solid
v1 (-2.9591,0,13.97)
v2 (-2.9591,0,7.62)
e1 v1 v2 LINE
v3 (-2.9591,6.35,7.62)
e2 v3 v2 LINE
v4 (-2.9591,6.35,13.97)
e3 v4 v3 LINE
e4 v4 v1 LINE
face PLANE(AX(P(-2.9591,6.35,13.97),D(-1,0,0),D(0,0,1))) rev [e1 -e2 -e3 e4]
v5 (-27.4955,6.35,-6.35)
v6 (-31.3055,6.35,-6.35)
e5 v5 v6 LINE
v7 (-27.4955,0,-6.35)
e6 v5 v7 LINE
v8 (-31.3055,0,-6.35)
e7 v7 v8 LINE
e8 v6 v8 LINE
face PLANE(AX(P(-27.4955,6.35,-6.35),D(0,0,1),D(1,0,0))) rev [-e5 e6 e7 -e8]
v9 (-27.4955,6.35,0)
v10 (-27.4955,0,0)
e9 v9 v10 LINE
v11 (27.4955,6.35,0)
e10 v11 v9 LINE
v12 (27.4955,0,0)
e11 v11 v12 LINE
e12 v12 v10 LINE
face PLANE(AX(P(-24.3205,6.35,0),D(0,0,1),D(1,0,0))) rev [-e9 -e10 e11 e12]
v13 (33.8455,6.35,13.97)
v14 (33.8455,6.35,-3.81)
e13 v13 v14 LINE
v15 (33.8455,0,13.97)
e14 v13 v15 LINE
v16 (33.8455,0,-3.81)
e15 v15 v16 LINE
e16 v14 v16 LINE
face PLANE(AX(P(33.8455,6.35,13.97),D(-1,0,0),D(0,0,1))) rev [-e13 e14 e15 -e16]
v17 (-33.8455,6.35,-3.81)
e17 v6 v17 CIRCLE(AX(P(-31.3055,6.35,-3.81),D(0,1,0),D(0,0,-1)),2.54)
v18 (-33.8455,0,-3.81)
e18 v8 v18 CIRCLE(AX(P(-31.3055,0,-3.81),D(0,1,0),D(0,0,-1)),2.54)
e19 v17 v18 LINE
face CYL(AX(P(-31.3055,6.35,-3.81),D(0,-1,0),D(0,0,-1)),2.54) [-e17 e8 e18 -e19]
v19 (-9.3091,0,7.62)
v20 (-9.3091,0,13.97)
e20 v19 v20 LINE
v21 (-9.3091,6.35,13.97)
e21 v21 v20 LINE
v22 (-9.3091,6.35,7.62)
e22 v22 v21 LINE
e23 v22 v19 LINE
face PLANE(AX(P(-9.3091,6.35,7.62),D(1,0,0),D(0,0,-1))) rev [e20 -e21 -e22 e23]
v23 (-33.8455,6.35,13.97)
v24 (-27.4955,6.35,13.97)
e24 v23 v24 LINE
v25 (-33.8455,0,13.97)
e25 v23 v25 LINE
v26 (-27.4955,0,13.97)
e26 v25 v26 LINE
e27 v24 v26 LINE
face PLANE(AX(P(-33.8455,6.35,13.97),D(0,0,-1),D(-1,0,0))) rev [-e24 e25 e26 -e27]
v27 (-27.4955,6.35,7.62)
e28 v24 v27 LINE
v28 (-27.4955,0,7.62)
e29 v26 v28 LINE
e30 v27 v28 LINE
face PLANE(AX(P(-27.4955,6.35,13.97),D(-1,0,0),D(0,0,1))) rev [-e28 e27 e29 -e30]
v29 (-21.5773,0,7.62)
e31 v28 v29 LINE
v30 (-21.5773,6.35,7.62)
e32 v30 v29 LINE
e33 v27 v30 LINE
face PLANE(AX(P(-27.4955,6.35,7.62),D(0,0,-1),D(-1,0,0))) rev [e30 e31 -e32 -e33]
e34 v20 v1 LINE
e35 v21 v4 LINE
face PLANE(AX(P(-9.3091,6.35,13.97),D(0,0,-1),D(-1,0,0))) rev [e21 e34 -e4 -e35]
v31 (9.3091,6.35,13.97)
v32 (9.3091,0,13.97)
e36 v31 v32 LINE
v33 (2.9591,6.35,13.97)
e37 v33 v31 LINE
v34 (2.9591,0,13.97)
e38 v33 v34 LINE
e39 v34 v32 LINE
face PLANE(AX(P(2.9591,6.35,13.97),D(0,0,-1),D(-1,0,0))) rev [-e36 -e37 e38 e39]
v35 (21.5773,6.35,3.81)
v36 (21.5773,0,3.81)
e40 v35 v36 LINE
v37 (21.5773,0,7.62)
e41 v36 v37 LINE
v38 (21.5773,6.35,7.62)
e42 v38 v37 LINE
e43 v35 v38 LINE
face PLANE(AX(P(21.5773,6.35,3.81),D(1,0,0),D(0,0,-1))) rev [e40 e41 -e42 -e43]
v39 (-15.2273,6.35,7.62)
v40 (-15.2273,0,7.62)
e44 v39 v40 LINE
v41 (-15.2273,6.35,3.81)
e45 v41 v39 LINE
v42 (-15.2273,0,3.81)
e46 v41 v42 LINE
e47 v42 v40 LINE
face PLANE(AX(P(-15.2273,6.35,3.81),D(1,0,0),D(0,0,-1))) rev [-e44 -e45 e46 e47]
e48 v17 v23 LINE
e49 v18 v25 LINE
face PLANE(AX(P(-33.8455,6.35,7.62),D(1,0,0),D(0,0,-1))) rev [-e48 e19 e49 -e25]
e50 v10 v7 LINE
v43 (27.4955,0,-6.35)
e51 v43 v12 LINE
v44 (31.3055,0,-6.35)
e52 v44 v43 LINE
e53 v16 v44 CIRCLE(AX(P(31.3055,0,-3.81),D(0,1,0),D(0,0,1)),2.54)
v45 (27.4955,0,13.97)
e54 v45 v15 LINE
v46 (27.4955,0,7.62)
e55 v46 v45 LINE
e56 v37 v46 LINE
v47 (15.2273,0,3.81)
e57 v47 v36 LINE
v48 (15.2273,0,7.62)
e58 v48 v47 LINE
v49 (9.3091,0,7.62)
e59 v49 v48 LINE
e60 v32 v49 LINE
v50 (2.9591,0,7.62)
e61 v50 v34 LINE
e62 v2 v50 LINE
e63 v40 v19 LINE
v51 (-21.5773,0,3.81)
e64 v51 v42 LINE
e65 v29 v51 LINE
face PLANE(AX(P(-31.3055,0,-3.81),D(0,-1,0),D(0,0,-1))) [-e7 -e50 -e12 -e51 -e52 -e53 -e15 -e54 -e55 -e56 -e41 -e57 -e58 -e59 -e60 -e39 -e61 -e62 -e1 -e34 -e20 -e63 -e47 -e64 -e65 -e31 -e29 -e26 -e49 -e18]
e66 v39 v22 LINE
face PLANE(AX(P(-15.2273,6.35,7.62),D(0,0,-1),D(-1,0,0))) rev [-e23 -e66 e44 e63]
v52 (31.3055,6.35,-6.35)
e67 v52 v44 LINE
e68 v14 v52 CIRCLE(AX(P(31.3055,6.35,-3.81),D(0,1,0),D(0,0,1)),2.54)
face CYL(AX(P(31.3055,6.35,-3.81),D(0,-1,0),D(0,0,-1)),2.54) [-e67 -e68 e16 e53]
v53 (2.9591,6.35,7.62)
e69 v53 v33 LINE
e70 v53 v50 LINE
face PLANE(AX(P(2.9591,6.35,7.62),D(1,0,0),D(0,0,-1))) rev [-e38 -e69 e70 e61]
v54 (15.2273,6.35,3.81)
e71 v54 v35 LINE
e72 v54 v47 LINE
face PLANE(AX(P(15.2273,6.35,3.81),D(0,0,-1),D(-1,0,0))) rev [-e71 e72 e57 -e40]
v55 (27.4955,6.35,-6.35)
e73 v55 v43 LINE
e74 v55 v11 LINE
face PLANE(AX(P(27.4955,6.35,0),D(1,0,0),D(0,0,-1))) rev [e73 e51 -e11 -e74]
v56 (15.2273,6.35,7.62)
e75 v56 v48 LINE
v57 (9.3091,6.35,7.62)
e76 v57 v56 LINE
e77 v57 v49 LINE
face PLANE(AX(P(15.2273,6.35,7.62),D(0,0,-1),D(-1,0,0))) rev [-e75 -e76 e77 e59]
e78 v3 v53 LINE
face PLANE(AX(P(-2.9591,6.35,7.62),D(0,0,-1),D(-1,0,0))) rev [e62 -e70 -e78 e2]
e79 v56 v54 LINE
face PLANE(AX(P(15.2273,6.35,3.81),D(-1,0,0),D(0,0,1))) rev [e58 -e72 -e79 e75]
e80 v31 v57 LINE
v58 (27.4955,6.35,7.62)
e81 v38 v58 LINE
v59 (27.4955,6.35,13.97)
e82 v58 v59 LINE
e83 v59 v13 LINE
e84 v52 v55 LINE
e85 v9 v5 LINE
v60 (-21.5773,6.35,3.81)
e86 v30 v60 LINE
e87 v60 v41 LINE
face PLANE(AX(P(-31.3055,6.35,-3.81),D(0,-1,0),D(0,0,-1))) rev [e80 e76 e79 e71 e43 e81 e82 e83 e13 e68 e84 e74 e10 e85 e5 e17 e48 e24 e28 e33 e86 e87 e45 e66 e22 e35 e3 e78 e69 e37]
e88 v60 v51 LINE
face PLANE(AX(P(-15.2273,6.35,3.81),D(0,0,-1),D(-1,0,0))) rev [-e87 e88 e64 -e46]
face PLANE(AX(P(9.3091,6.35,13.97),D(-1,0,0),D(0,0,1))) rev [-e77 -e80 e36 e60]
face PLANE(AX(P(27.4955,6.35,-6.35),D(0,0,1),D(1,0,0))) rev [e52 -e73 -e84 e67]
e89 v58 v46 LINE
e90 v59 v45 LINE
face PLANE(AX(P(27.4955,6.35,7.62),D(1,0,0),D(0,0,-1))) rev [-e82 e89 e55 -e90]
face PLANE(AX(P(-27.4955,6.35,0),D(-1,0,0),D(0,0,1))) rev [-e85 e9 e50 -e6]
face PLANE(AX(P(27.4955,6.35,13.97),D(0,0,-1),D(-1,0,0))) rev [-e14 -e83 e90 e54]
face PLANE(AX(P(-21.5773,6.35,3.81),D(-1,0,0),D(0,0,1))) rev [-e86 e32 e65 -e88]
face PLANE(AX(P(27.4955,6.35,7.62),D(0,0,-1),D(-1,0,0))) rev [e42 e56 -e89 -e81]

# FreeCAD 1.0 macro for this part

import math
import FreeCAD as App
import Part
import Sketcher
Q = App.Units.Quantity

doc = App.newDocument("Part")
body = doc.addObject("PartDesign::Body", "Body")

# Sketch on XZ plane
sketch1 = doc.addObject("Sketcher::SketchObject", "Sketch")
body.addObject(sketch1)
sketch1.AttachmentSupport = (doc.XZ_Plane, [""])
sketch1.MapMode = "FlatFace"
sketch1.addGeometry(Part.LineSegment(App.Vector(27.5, -6.3, 0), App.Vector(27.5, 0, 0)), False)
sketch1.addGeometry(Part.LineSegment(App.Vector(27.5, 0, 0), App.Vector(-27.5, 0, 0)), False)
sketch1.addGeometry(Part.LineSegment(App.Vector(-27.5, 0, 0), App.Vector(-27.5, -6.3, 0)), False)
sketch1.addGeometry(Part.LineSegment(App.Vector(-27.5, -6.3, 0), App.Vector(-31.3, -6.3, 0)), False)
sketch1.addGeometry(Part.ArcOfCircle(Part.Circle(App.Vector(-31.3, -3.8, 0), App.Vector(0, 0, 1), 2.5), math.radians(-180), math.radians(-90)), False)
sketch1.addGeometry(Part.LineSegment(App.Vector(-33.8, -3.8, 0), App.Vector(-33.8, 14, 0)), False)
sketch1.addGeometry(Part.LineSegment(App.Vector(-33.8, 14, 0), App.Vector(-27.5, 14, 0)), False)
sketch1.addGeometry(Part.LineSegment(App.Vector(-27.5, 14, 0), App.Vector(-27.5, 7.6, 0)), False)
sketch1.addGeometry(Part.LineSegment(App.Vector(-27.5, 7.6, 0), App.Vector(-21.6, 7.6, 0)), False)
sketch1.addGeometry(Part.LineSegment(App.Vector(-21.6, 7.6, 0), App.Vector(-21.6, 3.8, 0)), False)
sketch1.addGeometry(Part.LineSegment(App.Vector(-21.6, 3.8, 0), App.Vector(-15.2, 3.8, 0)), False)
sketch1.addGeometry(Part.LineSegment(App.Vector(-15.2, 3.8, 0), App.Vector(-15.2, 7.6, 0)), False)
sketch1.addGeometry(Part.LineSegment(App.Vector(-15.2, 7.6, 0), App.Vector(-9.3, 7.6, 0)), False)
sketch1.addGeometry(Part.LineSegment(App.Vector(-9.3, 7.6, 0), App.Vector(-9.3, 14, 0)), False)
sketch1.addGeometry(Part.LineSegment(App.Vector(-9.3, 14, 0), App.Vector(-3, 14, 0)), False)
sketch1.addGeometry(Part.LineSegment(App.Vector(-3, 14, 0), App.Vector(-3, 7.6, 0)), False)
sketch1.addGeometry(Part.LineSegment(App.Vector(-3, 7.6, 0), App.Vector(3, 7.6, 0)), False)
sketch1.addGeometry(Part.LineSegment(App.Vector(3, 7.6, 0), App.Vector(3, 14, 0)), False)
sketch1.addGeometry(Part.LineSegment(App.Vector(3, 14, 0), App.Vector(9.3, 14, 0)), False)
sketch1.addGeometry(Part.LineSegment(App.Vector(9.3, 14, 0), App.Vector(9.3, 7.6, 0)), False)
sketch1.addGeometry(Part.LineSegment(App.Vector(9.3, 7.6, 0), App.Vector(15.2, 7.6, 0)), False)
sketch1.addGeometry(Part.LineSegment(App.Vector(15.2, 7.6, 0), App.Vector(15.2, 3.8, 0)), False)
sketch1.addGeometry(Part.LineSegment(App.Vector(15.2, 3.8, 0), App.Vector(21.6, 3.8, 0)), False)
sketch1.addGeometry(Part.LineSegment(App.Vector(21.6, 3.8, 0), App.Vector(21.6, 7.6, 0)), False)
sketch1.addGeometry(Part.LineSegment(App.Vector(21.6, 7.6, 0), App.Vector(27.5, 7.6, 0)), False)
sketch1.addGeometry(Part.LineSegment(App.Vector(27.5, 7.6, 0), App.Vector(27.5, 14, 0)), False)
sketch1.addGeometry(Part.LineSegment(App.Vector(27.5, 14, 0), App.Vector(33.8, 14, 0)), False)
sketch1.addGeometry(Part.LineSegment(App.Vector(33.8, 14, 0), App.Vector(33.8, -3.8, 0)), False)
sketch1.addGeometry(Part.ArcOfCircle(Part.Circle(App.Vector(31.3, -3.8, 0), App.Vector(0, 0, 1), 2.5), math.radians(-90), math.radians(0)), False)
sketch1.addGeometry(Part.LineSegment(App.Vector(31.3, -6.3, 0), App.Vector(27.5, -6.3, 0)), False)
sketch1.addConstraint(Sketcher.Constraint("Coincident", 0, 2, 1, 1))
sketch1.addConstraint(Sketcher.Constraint("Coincident", 1, 2, 2, 1))
sketch1.addConstraint(Sketcher.Constraint("Coincident", 2, 2, 3, 1))
sketch1.addConstraint(Sketcher.Constraint("Tangent", 3, 2, 4, 2))
sketch1.addConstraint(Sketcher.Constraint("Tangent", 4, 1, 5, 1))
sketch1.addConstraint(Sketcher.Constraint("Coincident", 5, 2, 6, 1))
sketch1.addConstraint(Sketcher.Constraint("Coincident", 6, 2, 7, 1))
sketch1.addConstraint(Sketcher.Constraint("Coincident", 7, 2, 8, 1))
sketch1.addConstraint(Sketcher.Constraint("Coincident", 8, 2, 9, 1))
sketch1.addConstraint(Sketcher.Constraint("Coincident", 9, 2, 10, 1))
sketch1.addConstraint(Sketcher.Constraint("Coincident", 10, 2, 11, 1))
sketch1.addConstraint(Sketcher.Constraint("Coincident", 11, 2, 12, 1))
sketch1.addConstraint(Sketcher.Constraint("Coincident", 12, 2, 13, 1))
sketch1.addConstraint(Sketcher.Constraint("Coincident", 13, 2, 14, 1))
sketch1.addConstraint(Sketcher.Constraint("Coincident", 14, 2, 15, 1))
sketch1.addConstraint(Sketcher.Constraint("Coincident", 15, 2, 16, 1))
sketch1.addConstraint(Sketcher.Constraint("Coincident", 16, 2, 17, 1))
sketch1.addConstraint(Sketcher.Constraint("Coincident", 17, 2, 18, 1))
sketch1.addConstraint(Sketcher.Constraint("Coincident", 18, 2, 19, 1))
sketch1.addConstraint(Sketcher.Constraint("Coincident", 19, 2, 20, 1))
sketch1.addConstraint(Sketcher.Constraint("Coincident", 20, 2, 21, 1))
sketch1.addConstraint(Sketcher.Constraint("Coincident", 21, 2, 22, 1))
sketch1.addConstraint(Sketcher.Constraint("Coincident", 22, 2, 23, 1))
sketch1.addConstraint(Sketcher.Constraint("Coincident", 23, 2, 24, 1))
sketch1.addConstraint(Sketcher.Constraint("Coincident", 24, 2, 25, 1))
sketch1.addConstraint(Sketcher.Constraint("Coincident", 25, 2, 26, 1))
sketch1.addConstraint(Sketcher.Constraint("Coincident", 26, 2, 27, 1))
sketch1.addConstraint(Sketcher.Constraint("Tangent", 27, 2, 28, 2))
sketch1.addConstraint(Sketcher.Constraint("Tangent", 28, 1, 29, 1))
sketch1.addConstraint(Sketcher.Constraint("Coincident", 29, 2, 0, 1))
sketch1.addConstraint(Sketcher.Constraint("Vertical", 0))
sketch1.addConstraint(Sketcher.Constraint("Horizontal", 1))
sketch1.addConstraint(Sketcher.Constraint("Vertical", 2))
sketch1.addConstraint(Sketcher.Constraint("Horizontal", 3))
sketch1.addConstraint(Sketcher.Constraint("Vertical", 5))
sketch1.addConstraint(Sketcher.Constraint("Horizontal", 6))
sketch1.addConstraint(Sketcher.Constraint("Vertical", 7))
sketch1.addConstraint(Sketcher.Constraint("Horizontal", 8))
sketch1.addConstraint(Sketcher.Constraint("Vertical", 9))
sketch1.addConstraint(Sketcher.Constraint("Horizontal", 10))
sketch1.addConstraint(Sketcher.Constraint("Vertical", 11))
sketch1.addConstraint(Sketcher.Constraint("Horizontal", 12))
sketch1.addConstraint(Sketcher.Constraint("Vertical", 13))
sketch1.addConstraint(Sketcher.Constraint("Horizontal", 14))
sketch1.addConstraint(Sketcher.Constraint("Vertical", 15))
sketch1.addConstraint(Sketcher.Constraint("Horizontal", 16))
sketch1.addConstraint(Sketcher.Constraint("Vertical", 17))
sketch1.addConstraint(Sketcher.Constraint("Horizontal", 18))
sketch1.addConstraint(Sketcher.Constraint("Vertical", 19))
sketch1.addConstraint(Sketcher.Constraint("Horizontal", 20))
sketch1.addConstraint(Sketcher.Constraint("Vertical", 21))
sketch1.addConstraint(Sketcher.Constraint("Horizontal", 22))
sketch1.addConstraint(Sketcher.Constraint("Vertical", 23))
sketch1.addConstraint(Sketcher.Constraint("Horizontal", 24))
sketch1.addConstraint(Sketcher.Constraint("Vertical", 25))
sketch1.addConstraint(Sketcher.Constraint("Horizontal", 26))
sketch1.addConstraint(Sketcher.Constraint("Vertical", 27))
sketch1.addConstraint(Sketcher.Constraint("Horizontal", 29))
sketch1.addConstraint(Sketcher.Constraint("Equal", 4, 28))
sketch1.addConstraint(Sketcher.Constraint("Symmetric", 0, 2, 1, 2, -1, 1))
sketch1.addConstraint(Sketcher.Constraint("Symmetric", 4, 3, 28, 3, -2))
sketch1.addConstraint(Sketcher.Constraint("Symmetric", 14, 2, 17, 2, -2))
sketch1.addConstraint(Sketcher.Constraint("Symmetric", 12, 2, 19, 2, -2))
sketch1.addConstraint(Sketcher.Constraint("Symmetric", 10, 2, 21, 2, -2))
sketch1.addConstraint(Sketcher.Constraint("Symmetric", 8, 2, 23, 2, -2))
sketch1.addConstraint(Sketcher.Constraint("Symmetric", 6, 2, 25, 2, -2))
sketch1.addConstraint(Sketcher.Constraint("Horizontal", 8, 2, 11, 2))
sketch1.addConstraint(Sketcher.Constraint("Horizontal", 6, 2, 13, 2))
sketch1.addConstraint(Sketcher.Constraint("Horizontal", 12, 2, 15, 2))
sketch1.addConstraint(Sketcher.Constraint("Vertical", 2, 2, 6, 2))
sketch1.addConstraint(Sketcher.Constraint("Equal", 6, 10))
sketch1.addConstraint(Sketcher.Constraint("Equal", 8, 12))
sketch1.addConstraint(Sketcher.Constraint("Equal", 10, 14))
sketch1.addConstraint(Sketcher.Constraint("Equal", 12, 16))
sketch1.addConstraint(Sketcher.Constraint("Equal", 26, 0))
sketch1.addConstraint(Sketcher.Constraint("Equal", 2, 7))
sketch1.addConstraint(Sketcher.Constraint("Equal", 29, 9))
sketch1.addConstraint(Sketcher.Constraint("Radius", 4, Q("0.1 in")))
sketch1.addConstraint(Sketcher.Constraint("DistanceY", 5, 1, 5, 2, Q("0.7 in")))
sketch1.addConstraint(Sketcher.Constraint("DistanceX", 3, 2, 3, 1, Q("0.15 in")))
sketch1.addConstraint(Sketcher.Constraint("DistanceX", 1, 2, 1, 1, Q("2.165 in")))
pad1 = doc.addObject("PartDesign::Pad", "Pad")
body.addObject(pad1)
pad1.Profile = sketch1
pad1.Length = Q("0.25 in")
pad1.Reversed = True

doc.recompute()
